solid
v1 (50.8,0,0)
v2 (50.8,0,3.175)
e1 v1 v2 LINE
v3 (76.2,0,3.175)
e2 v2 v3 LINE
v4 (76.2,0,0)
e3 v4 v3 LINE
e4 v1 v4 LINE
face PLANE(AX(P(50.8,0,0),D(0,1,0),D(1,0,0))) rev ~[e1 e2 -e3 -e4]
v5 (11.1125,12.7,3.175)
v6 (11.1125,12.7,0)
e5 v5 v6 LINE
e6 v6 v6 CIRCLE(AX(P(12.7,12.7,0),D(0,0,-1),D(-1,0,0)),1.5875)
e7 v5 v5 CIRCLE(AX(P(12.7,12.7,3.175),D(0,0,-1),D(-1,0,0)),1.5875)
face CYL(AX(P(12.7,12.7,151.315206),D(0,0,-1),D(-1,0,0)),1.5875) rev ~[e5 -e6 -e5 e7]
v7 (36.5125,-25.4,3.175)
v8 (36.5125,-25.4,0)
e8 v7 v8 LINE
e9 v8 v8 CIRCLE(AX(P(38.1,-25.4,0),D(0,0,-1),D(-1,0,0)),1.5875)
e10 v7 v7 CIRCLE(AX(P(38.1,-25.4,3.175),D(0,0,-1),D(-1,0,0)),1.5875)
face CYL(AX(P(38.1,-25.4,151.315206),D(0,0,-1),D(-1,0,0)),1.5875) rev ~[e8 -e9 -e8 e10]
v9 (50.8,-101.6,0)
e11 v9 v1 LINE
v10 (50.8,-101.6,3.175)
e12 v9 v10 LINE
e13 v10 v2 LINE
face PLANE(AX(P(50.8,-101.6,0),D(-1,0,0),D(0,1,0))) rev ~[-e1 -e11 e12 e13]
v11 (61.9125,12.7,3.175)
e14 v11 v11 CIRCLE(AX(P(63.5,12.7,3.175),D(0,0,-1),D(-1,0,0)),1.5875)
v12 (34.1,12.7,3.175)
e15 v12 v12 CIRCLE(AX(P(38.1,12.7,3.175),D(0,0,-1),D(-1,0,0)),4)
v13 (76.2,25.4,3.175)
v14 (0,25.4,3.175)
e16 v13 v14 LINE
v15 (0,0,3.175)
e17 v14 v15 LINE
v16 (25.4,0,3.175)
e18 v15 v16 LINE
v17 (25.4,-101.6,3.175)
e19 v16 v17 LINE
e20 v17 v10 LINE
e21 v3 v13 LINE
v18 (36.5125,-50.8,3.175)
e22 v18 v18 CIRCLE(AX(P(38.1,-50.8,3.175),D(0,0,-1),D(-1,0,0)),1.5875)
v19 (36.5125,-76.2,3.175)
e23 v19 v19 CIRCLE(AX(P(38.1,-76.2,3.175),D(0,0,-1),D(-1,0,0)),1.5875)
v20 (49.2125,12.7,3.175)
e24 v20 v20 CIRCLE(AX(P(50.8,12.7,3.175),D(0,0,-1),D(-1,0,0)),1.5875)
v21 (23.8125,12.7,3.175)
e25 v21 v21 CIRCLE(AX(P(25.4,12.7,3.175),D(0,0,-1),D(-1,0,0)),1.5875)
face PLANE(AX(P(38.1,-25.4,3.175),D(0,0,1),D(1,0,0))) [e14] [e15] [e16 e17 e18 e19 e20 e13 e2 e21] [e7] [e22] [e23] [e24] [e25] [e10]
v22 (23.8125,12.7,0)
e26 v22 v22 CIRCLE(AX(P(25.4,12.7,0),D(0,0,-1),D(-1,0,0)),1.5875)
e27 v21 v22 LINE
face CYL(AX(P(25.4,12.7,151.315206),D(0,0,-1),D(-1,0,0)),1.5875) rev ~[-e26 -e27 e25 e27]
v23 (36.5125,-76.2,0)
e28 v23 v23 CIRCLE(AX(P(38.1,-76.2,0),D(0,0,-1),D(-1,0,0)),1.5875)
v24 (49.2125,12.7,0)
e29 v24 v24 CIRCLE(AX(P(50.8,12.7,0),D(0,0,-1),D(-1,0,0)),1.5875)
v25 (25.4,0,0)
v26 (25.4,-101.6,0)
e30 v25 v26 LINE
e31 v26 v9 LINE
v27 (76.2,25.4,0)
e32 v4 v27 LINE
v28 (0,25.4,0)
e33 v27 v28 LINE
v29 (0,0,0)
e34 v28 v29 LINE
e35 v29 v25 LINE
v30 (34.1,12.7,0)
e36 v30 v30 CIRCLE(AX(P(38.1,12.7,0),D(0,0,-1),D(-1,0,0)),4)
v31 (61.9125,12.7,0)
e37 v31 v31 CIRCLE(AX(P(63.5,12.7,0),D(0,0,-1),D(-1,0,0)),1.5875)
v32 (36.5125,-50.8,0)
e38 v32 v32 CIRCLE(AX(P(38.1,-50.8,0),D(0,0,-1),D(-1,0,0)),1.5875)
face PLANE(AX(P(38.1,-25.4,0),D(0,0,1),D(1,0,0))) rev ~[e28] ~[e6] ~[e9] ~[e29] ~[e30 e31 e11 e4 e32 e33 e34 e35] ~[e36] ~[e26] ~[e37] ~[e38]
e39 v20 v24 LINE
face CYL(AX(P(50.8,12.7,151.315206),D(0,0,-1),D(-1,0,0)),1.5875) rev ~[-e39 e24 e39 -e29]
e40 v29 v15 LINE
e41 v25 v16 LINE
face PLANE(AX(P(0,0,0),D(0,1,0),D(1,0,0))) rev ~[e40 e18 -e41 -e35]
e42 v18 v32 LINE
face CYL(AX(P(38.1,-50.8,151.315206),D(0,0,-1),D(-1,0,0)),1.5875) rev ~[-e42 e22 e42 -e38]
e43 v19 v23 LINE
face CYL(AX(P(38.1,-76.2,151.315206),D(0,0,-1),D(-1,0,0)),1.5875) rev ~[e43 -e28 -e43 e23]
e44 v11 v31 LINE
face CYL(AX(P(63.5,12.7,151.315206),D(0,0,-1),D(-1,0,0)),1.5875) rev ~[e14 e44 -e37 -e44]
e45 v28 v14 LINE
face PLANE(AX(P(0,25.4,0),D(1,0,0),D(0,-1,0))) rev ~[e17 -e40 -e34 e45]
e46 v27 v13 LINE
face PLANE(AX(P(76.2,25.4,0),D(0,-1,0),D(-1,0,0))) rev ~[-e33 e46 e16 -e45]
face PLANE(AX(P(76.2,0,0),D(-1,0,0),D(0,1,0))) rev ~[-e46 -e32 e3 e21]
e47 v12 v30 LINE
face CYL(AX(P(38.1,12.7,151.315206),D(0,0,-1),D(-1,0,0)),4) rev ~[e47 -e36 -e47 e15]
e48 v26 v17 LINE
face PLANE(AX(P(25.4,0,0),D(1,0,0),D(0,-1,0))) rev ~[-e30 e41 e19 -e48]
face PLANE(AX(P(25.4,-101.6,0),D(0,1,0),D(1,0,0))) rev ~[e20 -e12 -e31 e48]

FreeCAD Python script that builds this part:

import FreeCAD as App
import Part
import Sketcher
Q = App.Units.Quantity

doc = App.newDocument("Part")
body = doc.addObject("PartDesign::Body", "Body")

# Sketch on XY plane
sketch1 = body.newObject("Sketcher::SketchObject", "Sketch")
sketch1.AttachmentSupport = (doc.getObject("XY_Plane"), [""])
sketch1.MapMode = "FlatFace"
sketch1.addGeometry(Part.LineSegment(App.Vector(0, 25.4, 0), App.Vector(0, 0, 0)), False)
sketch1.addGeometry(Part.LineSegment(App.Vector(0, 0, 0), App.Vector(25.4, 0, 0)), False)
sketch1.addGeometry(Part.LineSegment(App.Vector(25.4, 0, 0), App.Vector(25.4, -101.6, 0)), False)
sketch1.addGeometry(Part.LineSegment(App.Vector(25.4, -101.6, 0), App.Vector(50.8, -101.6, 0)), False)
sketch1.addGeometry(Part.LineSegment(App.Vector(50.8, -101.6, 0), App.Vector(50.8, 0, 0)), False)
sketch1.addGeometry(Part.LineSegment(App.Vector(50.8, 0, 0), App.Vector(76.2, 0, 0)), False)
sketch1.addGeometry(Part.LineSegment(App.Vector(76.2, 0, 0), App.Vector(76.2, 25.4, 0)), False)
sketch1.addGeometry(Part.LineSegment(App.Vector(76.2, 25.4, 0), App.Vector(0, 25.4, 0)), False)
sketch1.addConstraint(Sketcher.Constraint("Coincident", 0, 2, 1, 1))
sketch1.addConstraint(Sketcher.Constraint("Coincident", 1, 2, 2, 1))
sketch1.addConstraint(Sketcher.Constraint("Coincident", 2, 2, 3, 1))
sketch1.addConstraint(Sketcher.Constraint("Coincident", 3, 2, 4, 1))
sketch1.addConstraint(Sketcher.Constraint("Coincident", 4, 2, 5, 1))
sketch1.addConstraint(Sketcher.Constraint("Coincident", 5, 2, 6, 1))
sketch1.addConstraint(Sketcher.Constraint("Coincident", 6, 2, 7, 1))
sketch1.addConstraint(Sketcher.Constraint("Coincident", 7, 2, 0, 1))
sketch1.addConstraint(Sketcher.Constraint("Vertical", 0))
sketch1.addConstraint(Sketcher.Constraint("Horizontal", 1))
sketch1.addConstraint(Sketcher.Constraint("Vertical", 2))
sketch1.addConstraint(Sketcher.Constraint("Horizontal", 3))
sketch1.addConstraint(Sketcher.Constraint("Vertical", 4))
sketch1.addConstraint(Sketcher.Constraint("Horizontal", 5))
sketch1.addConstraint(Sketcher.Constraint("Vertical", 6))
sketch1.addConstraint(Sketcher.Constraint("Horizontal", 7))
sketch1.addConstraint(Sketcher.Constraint("Coincident", 0, 2, -1, 1))
sketch1.addConstraint(Sketcher.Constraint("PointOnObject", 4, 2, -1))
sketch1.addConstraint(Sketcher.Constraint("Equal", 1, 3))
sketch1.addConstraint(Sketcher.Constraint("Equal", 3, 5))
sketch1.addConstraint(Sketcher.Constraint("Equal", 5, 0))
sketch1.addConstraint(Sketcher.Constraint("DistanceX", 1, 1, 1, 2, Q("1 in")))
sketch1.addConstraint(Sketcher.Constraint("DistanceY", 2, 2, 2, 1, Q("4 in")))
pad1 = body.newObject("PartDesign::Pad", "Pad")
pad1.Profile = sketch1
pad1.Length = Q("0.125 in")

# Sketch on XY plane
sketch2 = body.newObject("Sketcher::SketchObject", "Sketch001")
sketch2.AttachmentSupport = (doc.getObject("XY_Plane"), [""])
sketch2.MapMode = "FlatFace"
sketch2.AttachmentOffset = App.Placement(App.Vector(0, 0, 0.125 * 25.4), App.Rotation())
sketch2.addGeometry(Part.Circle(App.Vector(12.7, 12.7, 0), App.Vector(0, 0, 1), 1.5875), False)
sketch2.addGeometry(Part.Circle(App.Vector(25.4, 12.7, 0), App.Vector(0, 0, 1), 1.5875), False)
sketch2.addGeometry(Part.Circle(App.Vector(50.8, 12.7, 0), App.Vector(0, 0, 1), 1.5875), False)
sketch2.addGeometry(Part.Circle(App.Vector(63.5, 12.7, 0), App.Vector(0, 0, 1), 1.5875), False)
sketch2.addGeometry(Part.Circle(App.Vector(38.1, -25.4, 0), App.Vector(0, 0, 1), 1.5875), False)
sketch2.addGeometry(Part.Circle(App.Vector(38.1, -50.8, 0), App.Vector(0, 0, 1), 1.5875), False)
sketch2.addGeometry(Part.Circle(App.Vector(38.1, -76.2, 0), App.Vector(0, 0, 1), 1.5875), False)
sketch2.addConstraint(Sketcher.Constraint("Equal", 0, 1))
sketch2.addConstraint(Sketcher.Constraint("Equal", 1, 2))
sketch2.addConstraint(Sketcher.Constraint("Equal", 2, 3))
sketch2.addConstraint(Sketcher.Constraint("Equal", 3, 4))
sketch2.addConstraint(Sketcher.Constraint("Equal", 4, 5))
sketch2.addConstraint(Sketcher.Constraint("Equal", 5, 6))
sketch2.addConstraint(Sketcher.Constraint("Horizontal", 0, 3, 1, 3))
sketch2.addConstraint(Sketcher.Constraint("Horizontal", 1, 3, 2, 3))
sketch2.addConstraint(Sketcher.Constraint("Horizontal", 2, 3, 3, 3))
sketch2.addConstraint(Sketcher.Constraint("Vertical", 4, 3, 5, 3))
sketch2.addConstraint(Sketcher.Constraint("Vertical", 5, 3, 6, 3))
sketch2.addConstraint(Sketcher.Constraint("Diameter", 0, Q("0.125 in")))
sketch2.addConstraint(Sketcher.Constraint("DistanceX", -1, 1, 1, 3, Q("1 in")))
sketch2.addConstraint(Sketcher.Constraint("DistanceX", -1, 1, 2, 3, Q("2 in")))
sketch2.addConstraint(Sketcher.Constraint("DistanceY", 4, 3, -1, 1, Q("1 in")))
sketch2.addConstraint(Sketcher.Constraint("DistanceY", 5, 3, -1, 1, Q("2 in")))
sketch2.addConstraint(Sketcher.Constraint("DistanceY", 6, 3, -1, 1, Q("3 in")))
sketch2.addConstraint(Sketcher.Constraint("DistanceX", 0, 3, 3, 3, Q("2 in")))
sketch2.addConstraint(Sketcher.Constraint("DistanceX", 0, 3, 4, 3, Q("1 in")))
sketch2.addConstraint(Sketcher.Constraint("DistanceX", -1, 1, 0, 3, Q("0.5 in")))
sketch2.addConstraint(Sketcher.Constraint("DistanceY", -1, 1, 0, 3, Q("0.5 in")))
doc.recompute()
hole = body.newObject("PartDesign::Hole", "Hole")
hole.Profile = sketch2
hole.ThreadType = "None"
hole.Diameter = Q("0.125 in")
hole.DepthType = "ThroughAll"

# Sketch on XY plane
sketch3 = body.newObject("Sketcher::SketchObject", "Sketch002")
sketch3.AttachmentSupport = (doc.getObject("XY_Plane"), [""])
sketch3.MapMode = "FlatFace"
sketch3.AttachmentOffset = App.Placement(App.Vector(0, 0, 0.125 * 25.4), App.Rotation())
sketch3.addGeometry(Part.Circle(App.Vector(38.1, 12.7, 0), App.Vector(0, 0, 1), 4), False)
sketch3.addConstraint(Sketcher.Constraint("DistanceX", -1, 1, 0, 3, Q("1.5 in")))
sketch3.addConstraint(Sketcher.Constraint("DistanceY", -1, 1, 0, 3, Q("0.5 in")))
sketch3.addConstraint(Sketcher.Constraint("Diameter", 0, 8.0))
doc.recompute()
hole2 = body.newObject("PartDesign::Hole", "Hole001")
hole2.Profile = sketch3
hole2.ThreadType = "None"
hole2.Diameter = 8
hole2.DepthType = "ThroughAll"

doc.recompute()
